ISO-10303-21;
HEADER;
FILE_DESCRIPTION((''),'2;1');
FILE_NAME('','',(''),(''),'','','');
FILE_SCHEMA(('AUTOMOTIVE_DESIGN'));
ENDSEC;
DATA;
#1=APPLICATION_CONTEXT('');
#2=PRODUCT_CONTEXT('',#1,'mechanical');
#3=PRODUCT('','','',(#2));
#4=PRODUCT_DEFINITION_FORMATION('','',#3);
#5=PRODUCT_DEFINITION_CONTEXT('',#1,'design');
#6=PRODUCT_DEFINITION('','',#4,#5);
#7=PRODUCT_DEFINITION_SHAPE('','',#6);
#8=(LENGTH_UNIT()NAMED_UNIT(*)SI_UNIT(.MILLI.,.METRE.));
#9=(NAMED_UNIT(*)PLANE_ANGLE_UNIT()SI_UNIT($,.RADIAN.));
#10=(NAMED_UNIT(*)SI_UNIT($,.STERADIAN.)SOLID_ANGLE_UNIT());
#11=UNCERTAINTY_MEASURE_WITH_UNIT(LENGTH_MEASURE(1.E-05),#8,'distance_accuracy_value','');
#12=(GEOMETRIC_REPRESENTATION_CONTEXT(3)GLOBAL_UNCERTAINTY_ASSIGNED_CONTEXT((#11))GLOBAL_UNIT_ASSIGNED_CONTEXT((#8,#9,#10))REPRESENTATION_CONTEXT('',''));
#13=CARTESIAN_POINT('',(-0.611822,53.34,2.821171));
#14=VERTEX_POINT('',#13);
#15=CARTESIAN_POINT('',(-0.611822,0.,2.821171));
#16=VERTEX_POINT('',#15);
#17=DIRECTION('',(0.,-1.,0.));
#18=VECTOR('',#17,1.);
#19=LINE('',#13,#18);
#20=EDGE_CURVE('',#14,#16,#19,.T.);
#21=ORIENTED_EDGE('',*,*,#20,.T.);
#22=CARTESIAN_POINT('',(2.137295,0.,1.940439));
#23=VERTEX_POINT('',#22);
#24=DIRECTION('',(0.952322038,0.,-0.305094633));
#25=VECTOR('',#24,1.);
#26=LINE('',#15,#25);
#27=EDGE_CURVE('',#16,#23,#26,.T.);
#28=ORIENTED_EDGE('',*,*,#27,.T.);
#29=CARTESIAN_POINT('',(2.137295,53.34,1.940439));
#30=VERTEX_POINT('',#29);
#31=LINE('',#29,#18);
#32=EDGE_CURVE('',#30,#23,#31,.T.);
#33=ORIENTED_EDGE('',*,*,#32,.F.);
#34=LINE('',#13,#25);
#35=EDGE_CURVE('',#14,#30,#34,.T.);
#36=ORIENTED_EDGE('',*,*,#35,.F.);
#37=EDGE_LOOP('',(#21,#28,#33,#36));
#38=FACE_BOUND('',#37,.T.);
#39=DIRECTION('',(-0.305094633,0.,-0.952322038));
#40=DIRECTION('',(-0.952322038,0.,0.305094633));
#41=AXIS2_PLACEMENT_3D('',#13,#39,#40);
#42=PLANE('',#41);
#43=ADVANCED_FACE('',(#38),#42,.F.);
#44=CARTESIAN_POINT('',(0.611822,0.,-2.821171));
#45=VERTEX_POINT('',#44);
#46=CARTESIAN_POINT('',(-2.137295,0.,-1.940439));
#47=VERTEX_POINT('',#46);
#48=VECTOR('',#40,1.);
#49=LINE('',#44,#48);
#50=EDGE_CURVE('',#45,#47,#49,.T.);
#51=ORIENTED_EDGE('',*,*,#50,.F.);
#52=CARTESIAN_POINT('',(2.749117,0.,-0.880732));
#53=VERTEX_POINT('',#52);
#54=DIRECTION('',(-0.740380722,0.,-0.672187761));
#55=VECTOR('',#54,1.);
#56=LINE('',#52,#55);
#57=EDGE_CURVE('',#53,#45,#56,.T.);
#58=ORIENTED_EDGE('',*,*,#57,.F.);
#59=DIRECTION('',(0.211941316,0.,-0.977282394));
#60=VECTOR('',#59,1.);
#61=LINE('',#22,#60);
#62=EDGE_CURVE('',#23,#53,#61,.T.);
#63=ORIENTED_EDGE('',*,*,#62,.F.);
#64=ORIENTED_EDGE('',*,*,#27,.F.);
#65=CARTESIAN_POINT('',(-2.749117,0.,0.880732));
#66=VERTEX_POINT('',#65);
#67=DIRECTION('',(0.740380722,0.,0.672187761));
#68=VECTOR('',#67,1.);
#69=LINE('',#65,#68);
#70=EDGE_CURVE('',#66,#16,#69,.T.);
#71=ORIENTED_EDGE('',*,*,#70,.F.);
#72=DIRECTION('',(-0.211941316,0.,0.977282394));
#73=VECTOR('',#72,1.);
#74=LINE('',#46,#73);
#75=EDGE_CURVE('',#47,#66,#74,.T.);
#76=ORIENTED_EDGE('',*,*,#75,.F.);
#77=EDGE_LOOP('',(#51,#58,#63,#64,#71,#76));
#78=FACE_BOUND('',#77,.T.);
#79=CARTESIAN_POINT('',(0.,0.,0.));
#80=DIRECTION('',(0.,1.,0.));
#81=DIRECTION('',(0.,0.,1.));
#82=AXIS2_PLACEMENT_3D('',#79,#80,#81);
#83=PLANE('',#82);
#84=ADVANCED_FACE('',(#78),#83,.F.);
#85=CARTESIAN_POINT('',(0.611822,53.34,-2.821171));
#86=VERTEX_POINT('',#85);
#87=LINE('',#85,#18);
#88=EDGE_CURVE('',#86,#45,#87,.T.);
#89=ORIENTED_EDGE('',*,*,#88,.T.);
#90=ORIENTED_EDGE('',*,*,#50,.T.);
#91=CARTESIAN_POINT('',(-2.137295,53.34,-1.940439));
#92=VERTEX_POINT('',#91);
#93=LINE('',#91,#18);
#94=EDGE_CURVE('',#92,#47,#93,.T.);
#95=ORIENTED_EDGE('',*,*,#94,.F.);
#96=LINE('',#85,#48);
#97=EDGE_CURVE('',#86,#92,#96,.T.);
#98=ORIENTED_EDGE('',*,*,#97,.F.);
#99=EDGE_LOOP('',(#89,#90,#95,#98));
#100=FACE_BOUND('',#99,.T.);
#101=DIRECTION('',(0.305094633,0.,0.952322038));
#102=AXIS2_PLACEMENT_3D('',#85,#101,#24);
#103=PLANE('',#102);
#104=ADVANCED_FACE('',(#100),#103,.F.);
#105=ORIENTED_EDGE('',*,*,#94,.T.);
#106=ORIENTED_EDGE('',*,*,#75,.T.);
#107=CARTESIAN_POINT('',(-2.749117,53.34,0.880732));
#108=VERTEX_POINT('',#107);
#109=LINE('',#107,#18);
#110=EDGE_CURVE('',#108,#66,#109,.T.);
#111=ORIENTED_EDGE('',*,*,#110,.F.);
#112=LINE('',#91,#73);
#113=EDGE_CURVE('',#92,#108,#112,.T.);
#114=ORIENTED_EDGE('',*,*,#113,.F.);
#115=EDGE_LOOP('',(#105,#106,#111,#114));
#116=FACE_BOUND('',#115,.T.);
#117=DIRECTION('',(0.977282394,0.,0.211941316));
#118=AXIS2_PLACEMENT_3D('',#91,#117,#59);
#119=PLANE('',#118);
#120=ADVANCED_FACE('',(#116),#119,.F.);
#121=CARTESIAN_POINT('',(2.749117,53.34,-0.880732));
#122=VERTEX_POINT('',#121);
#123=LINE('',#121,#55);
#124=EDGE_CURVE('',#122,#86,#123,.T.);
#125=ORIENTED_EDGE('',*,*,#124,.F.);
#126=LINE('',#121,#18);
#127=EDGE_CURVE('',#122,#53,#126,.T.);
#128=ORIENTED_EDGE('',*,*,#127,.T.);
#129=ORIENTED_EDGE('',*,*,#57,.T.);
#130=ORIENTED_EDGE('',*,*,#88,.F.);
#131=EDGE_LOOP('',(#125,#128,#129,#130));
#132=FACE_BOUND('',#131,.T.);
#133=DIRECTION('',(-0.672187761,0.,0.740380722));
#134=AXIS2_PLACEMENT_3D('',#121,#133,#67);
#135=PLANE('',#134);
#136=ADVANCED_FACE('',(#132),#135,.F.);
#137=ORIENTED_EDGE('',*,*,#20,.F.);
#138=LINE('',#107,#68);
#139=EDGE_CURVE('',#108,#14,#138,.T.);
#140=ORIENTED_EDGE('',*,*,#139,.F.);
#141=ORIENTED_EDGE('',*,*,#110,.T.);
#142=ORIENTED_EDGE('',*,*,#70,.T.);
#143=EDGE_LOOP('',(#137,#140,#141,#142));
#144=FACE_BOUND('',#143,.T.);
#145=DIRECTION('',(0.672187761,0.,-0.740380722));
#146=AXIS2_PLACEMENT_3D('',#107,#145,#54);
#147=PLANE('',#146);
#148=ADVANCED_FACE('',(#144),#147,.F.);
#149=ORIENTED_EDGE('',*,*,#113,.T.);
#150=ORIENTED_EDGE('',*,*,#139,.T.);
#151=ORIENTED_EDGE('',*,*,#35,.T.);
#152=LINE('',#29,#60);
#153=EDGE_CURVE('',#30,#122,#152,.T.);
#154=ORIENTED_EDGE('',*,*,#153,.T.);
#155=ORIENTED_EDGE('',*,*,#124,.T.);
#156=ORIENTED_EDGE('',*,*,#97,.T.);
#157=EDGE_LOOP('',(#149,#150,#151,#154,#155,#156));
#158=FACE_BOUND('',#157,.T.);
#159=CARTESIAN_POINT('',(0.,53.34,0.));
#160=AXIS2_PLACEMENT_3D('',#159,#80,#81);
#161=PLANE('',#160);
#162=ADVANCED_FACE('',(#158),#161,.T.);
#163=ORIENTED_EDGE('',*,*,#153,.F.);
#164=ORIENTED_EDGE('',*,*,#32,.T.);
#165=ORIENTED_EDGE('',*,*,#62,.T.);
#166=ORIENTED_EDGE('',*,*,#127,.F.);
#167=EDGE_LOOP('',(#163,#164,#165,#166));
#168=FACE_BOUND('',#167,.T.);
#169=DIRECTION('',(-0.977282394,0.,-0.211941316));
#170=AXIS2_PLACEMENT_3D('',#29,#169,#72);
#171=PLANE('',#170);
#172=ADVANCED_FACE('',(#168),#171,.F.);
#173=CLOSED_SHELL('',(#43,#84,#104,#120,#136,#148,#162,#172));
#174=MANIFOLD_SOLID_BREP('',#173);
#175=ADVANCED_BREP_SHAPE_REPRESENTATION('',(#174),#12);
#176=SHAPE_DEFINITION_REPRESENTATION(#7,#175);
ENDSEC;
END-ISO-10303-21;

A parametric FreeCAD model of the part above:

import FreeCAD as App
import Part
import Sketcher

V = App.Vector
Q = App.Units.Quantity


def add_polygon(sketch, points):
    """Adds a closed chain of lines whose ends are joined by coincident constraints."""
    first, n = sketch.GeometryCount, len(points)
    for a, b in zip(points, points[1:] + points[:1]):
        sketch.addGeometry(Part.LineSegment(App.Vector(*a, 0), App.Vector(*b, 0)), False)
    for i in range(n):
        sketch.addConstraint(Sketcher.Constraint("Coincident", first + i, 2, first + (i + 1) % n, 1))

doc = App.newDocument("Part")
body = doc.addObject("PartDesign::Body", "Body")

# Sketch on XZ plane
sketch1 = body.newObject("Sketcher::SketchObject", "Sketch")
sketch1.AttachmentSupport = (doc.getObject("XZ_Plane"), [""])
sketch1.MapMode = "FlatFace"
add_polygon(sketch1, [(2.1, 1.9), (2.7, -0.9), (0.6, -2.8), (-2.1, -1.9), (-2.7, 0.9), (-0.6, 2.8)])  # lines 0-5
sketch1.addConstraint([
    Sketcher.Constraint("Symmetric", 0, 2, 3, 2, -1, 1),
    Sketcher.Constraint("Symmetric", 1, 2, 4, 2, -1, 1),
    Sketcher.Constraint("Symmetric", 2, 2, 5, 2, -1, 1),
    Sketcher.Constraint("Equal", 0, 1),
    Sketcher.Constraint("Equal", 1, 2),
    Sketcher.Constraint("Distance", 0, Q("2.886751 mm")),
    Sketcher.Constraint("DistanceX", -1, 1, 1, 2, Q("0.611822 mm")),
    Sketcher.Constraint("DistanceY", 1, 2, -1, 1, Q("2.821171 mm")),
    Sketcher.Constraint("DistanceY", 2, 2, -1, 1, Q("1.940439 mm")),
])
pad1 = body.newObject("PartDesign::Pad", "Pad")
pad1.Profile = sketch1
pad1.Length = Q("2.1 in")
pad1.Reversed = True

doc.recompute()
